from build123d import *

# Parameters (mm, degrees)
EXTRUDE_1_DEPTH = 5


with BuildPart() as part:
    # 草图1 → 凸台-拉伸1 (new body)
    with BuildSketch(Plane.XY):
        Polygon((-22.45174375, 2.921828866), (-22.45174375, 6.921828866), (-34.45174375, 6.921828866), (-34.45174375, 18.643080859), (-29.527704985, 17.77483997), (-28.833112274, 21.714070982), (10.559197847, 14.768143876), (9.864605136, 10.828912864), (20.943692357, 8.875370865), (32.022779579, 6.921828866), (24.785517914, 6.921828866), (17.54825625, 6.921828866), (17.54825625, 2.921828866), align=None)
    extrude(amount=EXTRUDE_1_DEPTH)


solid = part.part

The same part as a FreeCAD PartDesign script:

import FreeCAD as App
import Part
import Sketcher
Q = App.Units.Quantity

doc = App.newDocument("Part")
body = doc.addObject("PartDesign::Body", "Body")

sketch1 = doc.addObject("Sketcher::SketchObject", "Sketch")
body.addObject(sketch1)
sketch1.AttachmentSupport = (doc.XY_Plane, [""])
sketch1.MapMode = "FlatFace"
sketch1.addGeometry(Part.LineSegment(App.Vector(-22.451744, 6.921829, 0), App.Vector(-22.451744, 2.921829, 0)), False)
sketch1.addGeometry(Part.LineSegment(App.Vector(-22.451744, 2.921829, 0), App.Vector(17.548256, 2.921829, 0)), False)
sketch1.addGeometry(Part.LineSegment(App.Vector(17.548256, 2.921829, 0), App.Vector(17.548256, 6.921829, 0)), False)
sketch1.addGeometry(Part.LineSegment(App.Vector(17.548256, 6.921829, 0), App.Vector(32.02278, 6.921829, 0)), False)
sketch1.addGeometry(Part.LineSegment(App.Vector(32.02278, 6.921829, 0), App.Vector(20.943692, 8.875371, 0)), False)
sketch1.addGeometry(Part.LineSegment(App.Vector(20.943692, 8.875371, 0), App.Vector(9.864605, 10.828913, 0)), False)
sketch1.addGeometry(Part.LineSegment(App.Vector(9.864605, 10.828913, 0), App.Vector(10.559198, 14.768144, 0)), False)
sketch1.addGeometry(Part.LineSegment(App.Vector(10.559198, 14.768144, 0), App.Vector(-28.833112, 21.714071, 0)), False)
sketch1.addGeometry(Part.LineSegment(App.Vector(-28.833112, 21.714071, 0), App.Vector(-29.527705, 17.77484, 0)), False)
sketch1.addGeometry(Part.LineSegment(App.Vector(-29.527705, 17.77484, 0), App.Vector(-34.451744, 18.643081, 0)), False)
sketch1.addGeometry(Part.LineSegment(App.Vector(-34.451744, 18.643081, 0), App.Vector(-34.451744, 6.921829, 0)), False)
sketch1.addGeometry(Part.LineSegment(App.Vector(-34.451744, 6.921829, 0), App.Vector(-22.451744, 6.921829, 0)), False)
sketch1.addConstraint(Sketcher.Constraint("Coincident", 0, 2, 1, 1))
sketch1.addConstraint(Sketcher.Constraint("Coincident", 1, 2, 2, 1))
sketch1.addConstraint(Sketcher.Constraint("Coincident", 2, 2, 3, 1))
sketch1.addConstraint(Sketcher.Constraint("Coincident", 3, 2, 4, 1))
sketch1.addConstraint(Sketcher.Constraint("Coincident", 4, 2, 5, 1))
sketch1.addConstraint(Sketcher.Constraint("Coincident", 5, 2, 6, 1))
sketch1.addConstraint(Sketcher.Constraint("Coincident", 6, 2, 7, 1))
sketch1.addConstraint(Sketcher.Constraint("Coincident", 7, 2, 8, 1))
sketch1.addConstraint(Sketcher.Constraint("Coincident", 8, 2, 9, 1))
sketch1.addConstraint(Sketcher.Constraint("Coincident", 9, 2, 10, 1))
sketch1.addConstraint(Sketcher.Constraint("Coincident", 10, 2, 11, 1))
sketch1.addConstraint(Sketcher.Constraint("Coincident", 11, 2, 0, 1))
sketch1.addConstraint(Sketcher.Constraint("Vertical", 0))
sketch1.addConstraint(Sketcher.Constraint("Horizontal", 1))
sketch1.addConstraint(Sketcher.Constraint("Vertical", 2))
sketch1.addConstraint(Sketcher.Constraint("Horizontal", 3))
sketch1.addConstraint(Sketcher.Constraint("Vertical", 10))
sketch1.addConstraint(Sketcher.Constraint("Horizontal", 11))
sketch1.addConstraint(Sketcher.Constraint("Parallel", 4, 5))
sketch1.addConstraint(Sketcher.Constraint("Perpendicular", 5, 6))
sketch1.addConstraint(Sketcher.Constraint("Perpendicular", 6, 7))
sketch1.addConstraint(Sketcher.Constraint("Perpendicular", 7, 8))
sketch1.addConstraint(Sketcher.Constraint("Perpendicular", 8, 9))
sketch1.addConstraint(Sketcher.Constraint("Horizontal", 3, 2, 10, 2))
sketch1.addConstraint(Sketcher.Constraint("Equal", 4, 5))
sketch1.addConstraint(Sketcher.Constraint("Equal", 6, 8))
sketch1.addConstraint(Sketcher.Constraint("DistanceX", 1, 1, 1, 2, 40.0))
sketch1.addConstraint(Sketcher.Constraint("DistanceX", 11, 1, 11, 2, 12.0))
sketch1.addConstraint(Sketcher.Constraint("DistanceY", 0, 2, 0, 1, 4.0))
sketch1.addConstraint(Sketcher.Constraint("Angle", 4, Q("170 deg")))
sketch1.addConstraint(Sketcher.Constraint("Distance", 6, 4.0))
sketch1.addConstraint(Sketcher.Constraint("Distance", 7, 40.0))
sketch1.addConstraint(Sketcher.Constraint("Distance", 9, 5.0))
sketch1.addConstraint(Sketcher.Constraint("Distance", 4, 11.25))
sketch1.addConstraint(Sketcher.Constraint("DistanceY", -1, 1, 0, 2, 2.921829))
sketch1.addConstraint(Sketcher.Constraint("DistanceX", -1, 1, 3, 2, 32.02278))
pad1 = doc.addObject("PartDesign::Pad", "Pad")
body.addObject(pad1)
pad1.Profile = sketch1
pad1.Length = 5

doc.recompute()
